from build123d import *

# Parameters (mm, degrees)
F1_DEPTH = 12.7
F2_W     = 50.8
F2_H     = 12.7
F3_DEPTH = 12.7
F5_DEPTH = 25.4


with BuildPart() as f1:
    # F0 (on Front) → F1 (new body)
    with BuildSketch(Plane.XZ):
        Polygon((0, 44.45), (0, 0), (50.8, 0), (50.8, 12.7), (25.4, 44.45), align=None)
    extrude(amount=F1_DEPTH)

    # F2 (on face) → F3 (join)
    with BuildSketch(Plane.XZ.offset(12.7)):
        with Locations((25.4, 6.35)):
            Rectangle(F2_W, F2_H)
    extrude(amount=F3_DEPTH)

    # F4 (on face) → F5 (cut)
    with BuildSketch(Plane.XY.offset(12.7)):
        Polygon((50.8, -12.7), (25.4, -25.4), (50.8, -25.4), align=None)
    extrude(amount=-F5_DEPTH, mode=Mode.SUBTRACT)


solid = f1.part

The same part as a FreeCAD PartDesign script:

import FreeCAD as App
import Part
import Sketcher
from FreeCAD import Vector
Q = App.Units.Quantity

doc = App.newDocument("Part")
body = doc.addObject("PartDesign::Body", "Body")

sketch1 = body.newObject("Sketcher::SketchObject", "Sketch")
sketch1.AttachmentSupport = (doc.getObject("XZ_Plane"), [""])
sketch1.MapMode = "FlatFace"
sketch1.addGeometry(Part.LineSegment(Vector(0, 44, 0), Vector(0, 0, 0)), False)
sketch1.addGeometry(Part.LineSegment(Vector(0, 0, 0), Vector(51, 0, 0)), False)
sketch1.addGeometry(Part.LineSegment(Vector(51, 0, 0), Vector(51, 13, 0)), False)
sketch1.addGeometry(Part.LineSegment(Vector(51, 13, 0), Vector(25, 44, 0)), False)
sketch1.addGeometry(Part.LineSegment(Vector(25, 44, 0), Vector(0, 44, 0)), False)
sketch1.addConstraint(Sketcher.Constraint("Coincident", 0, 2, 1, 1))
sketch1.addConstraint(Sketcher.Constraint("Coincident", 1, 2, 2, 1))
sketch1.addConstraint(Sketcher.Constraint("Coincident", 2, 2, 3, 1))
sketch1.addConstraint(Sketcher.Constraint("Coincident", 3, 2, 4, 1))
sketch1.addConstraint(Sketcher.Constraint("Coincident", 4, 2, 0, 1))
sketch1.addConstraint(Sketcher.Constraint("Vertical", 0))
sketch1.addConstraint(Sketcher.Constraint("Horizontal", 1))
sketch1.addConstraint(Sketcher.Constraint("Vertical", 2))
sketch1.addConstraint(Sketcher.Constraint("Horizontal", 4))
sketch1.addConstraint(Sketcher.Constraint("Coincident", 0, 2, -1, 1))
sketch1.addConstraint(Sketcher.Constraint("DistanceX", 1, 1, 1, 2, Q("2 in")))
sketch1.addConstraint(Sketcher.Constraint("DistanceX", 4, 2, 4, 1, Q("1 in")))
sketch1.addConstraint(Sketcher.Constraint("DistanceY", 2, 1, 2, 2, Q("0.5 in")))
sketch1.addConstraint(Sketcher.Constraint("DistanceY", 0, 2, 0, 1, Q("1.75 in")))
pad1 = body.newObject("PartDesign::Pad", "Pad")
pad1.Profile = sketch1
pad1.Length = Q("0.5 in")

sketch2 = body.newObject("Sketcher::SketchObject", "Sketch001")
sketch2.AttachmentSupport = (doc.getObject("XZ_Plane"), [""])
sketch2.MapMode = "FlatFace"
sketch2.AttachmentOffset = App.Placement(Vector(0, 0, 0.5 * 25.4), App.Rotation())
sketch2.addGeometry(Part.LineSegment(Vector(0, 13, 0), Vector(0, 0, 0)), False)
sketch2.addGeometry(Part.LineSegment(Vector(0, 0, 0), Vector(51, 0, 0)), False)
sketch2.addGeometry(Part.LineSegment(Vector(51, 0, 0), Vector(51, 13, 0)), False)
sketch2.addGeometry(Part.LineSegment(Vector(51, 13, 0), Vector(0, 13, 0)), False)
sketch2.addConstraint(Sketcher.Constraint("Coincident", 0, 2, 1, 1))
sketch2.addConstraint(Sketcher.Constraint("Coincident", 1, 2, 2, 1))
sketch2.addConstraint(Sketcher.Constraint("Coincident", 2, 2, 3, 1))
sketch2.addConstraint(Sketcher.Constraint("Coincident", 3, 2, 0, 1))
sketch2.addConstraint(Sketcher.Constraint("Vertical", 0))
sketch2.addConstraint(Sketcher.Constraint("Horizontal", 1))
sketch2.addConstraint(Sketcher.Constraint("Vertical", 2))
sketch2.addConstraint(Sketcher.Constraint("Horizontal", 3))
sketch2.addConstraint(Sketcher.Constraint("Coincident", 0, 2, -1, 1))
sketch2.addConstraint(Sketcher.Constraint("DistanceX", 1, 1, 1, 2, Q("2 in")))
sketch2.addConstraint(Sketcher.Constraint("DistanceY", 0, 2, 0, 1, Q("0.5 in")))
pad2 = body.newObject("PartDesign::Pad", "Pad001")
pad2.Profile = sketch2
pad2.Length = Q("0.5 in")

sketch3 = body.newObject("Sketcher::SketchObject", "Sketch002")
sketch3.AttachmentSupport = (doc.getObject("XY_Plane"), [""])
sketch3.MapMode = "FlatFace"
sketch3.AttachmentOffset = App.Placement(Vector(0, 0, 0.5 * 25.4), App.Rotation())
sketch3.addGeometry(Part.LineSegment(Vector(51, -13, 0), Vector(25, -25, 0)), False)
sketch3.addGeometry(Part.LineSegment(Vector(25, -25, 0), Vector(51, -25, 0)), False)
sketch3.addGeometry(Part.LineSegment(Vector(51, -25, 0), Vector(51, -13, 0)), False)
sketch3.addConstraint(Sketcher.Constraint("Coincident", 0, 2, 1, 1))
sketch3.addConstraint(Sketcher.Constraint("Coincident", 1, 2, 2, 1))
sketch3.addConstraint(Sketcher.Constraint("Coincident", 2, 2, 0, 1))
sketch3.addConstraint(Sketcher.Constraint("Horizontal", 1))
sketch3.addConstraint(Sketcher.Constraint("Vertical", 2))
sketch3.addConstraint(Sketcher.Constraint("DistanceX", 1, 1, 1, 2, Q("1 in")))
sketch3.addConstraint(Sketcher.Constraint("DistanceY", 2, 1, 2, 2, Q("0.5 in")))
sketch3.addConstraint(Sketcher.Constraint("DistanceX", -1, 1, 0, 2, Q("1 in")))
sketch3.addConstraint(Sketcher.Constraint("DistanceY", 0, 2, -1, 1, Q("1 in")))
pocket1 = body.newObject("PartDesign::Pocket", "Pocket")
pocket1.Profile = sketch3
pocket1.Length = Q("1 in")

doc.recompute()
